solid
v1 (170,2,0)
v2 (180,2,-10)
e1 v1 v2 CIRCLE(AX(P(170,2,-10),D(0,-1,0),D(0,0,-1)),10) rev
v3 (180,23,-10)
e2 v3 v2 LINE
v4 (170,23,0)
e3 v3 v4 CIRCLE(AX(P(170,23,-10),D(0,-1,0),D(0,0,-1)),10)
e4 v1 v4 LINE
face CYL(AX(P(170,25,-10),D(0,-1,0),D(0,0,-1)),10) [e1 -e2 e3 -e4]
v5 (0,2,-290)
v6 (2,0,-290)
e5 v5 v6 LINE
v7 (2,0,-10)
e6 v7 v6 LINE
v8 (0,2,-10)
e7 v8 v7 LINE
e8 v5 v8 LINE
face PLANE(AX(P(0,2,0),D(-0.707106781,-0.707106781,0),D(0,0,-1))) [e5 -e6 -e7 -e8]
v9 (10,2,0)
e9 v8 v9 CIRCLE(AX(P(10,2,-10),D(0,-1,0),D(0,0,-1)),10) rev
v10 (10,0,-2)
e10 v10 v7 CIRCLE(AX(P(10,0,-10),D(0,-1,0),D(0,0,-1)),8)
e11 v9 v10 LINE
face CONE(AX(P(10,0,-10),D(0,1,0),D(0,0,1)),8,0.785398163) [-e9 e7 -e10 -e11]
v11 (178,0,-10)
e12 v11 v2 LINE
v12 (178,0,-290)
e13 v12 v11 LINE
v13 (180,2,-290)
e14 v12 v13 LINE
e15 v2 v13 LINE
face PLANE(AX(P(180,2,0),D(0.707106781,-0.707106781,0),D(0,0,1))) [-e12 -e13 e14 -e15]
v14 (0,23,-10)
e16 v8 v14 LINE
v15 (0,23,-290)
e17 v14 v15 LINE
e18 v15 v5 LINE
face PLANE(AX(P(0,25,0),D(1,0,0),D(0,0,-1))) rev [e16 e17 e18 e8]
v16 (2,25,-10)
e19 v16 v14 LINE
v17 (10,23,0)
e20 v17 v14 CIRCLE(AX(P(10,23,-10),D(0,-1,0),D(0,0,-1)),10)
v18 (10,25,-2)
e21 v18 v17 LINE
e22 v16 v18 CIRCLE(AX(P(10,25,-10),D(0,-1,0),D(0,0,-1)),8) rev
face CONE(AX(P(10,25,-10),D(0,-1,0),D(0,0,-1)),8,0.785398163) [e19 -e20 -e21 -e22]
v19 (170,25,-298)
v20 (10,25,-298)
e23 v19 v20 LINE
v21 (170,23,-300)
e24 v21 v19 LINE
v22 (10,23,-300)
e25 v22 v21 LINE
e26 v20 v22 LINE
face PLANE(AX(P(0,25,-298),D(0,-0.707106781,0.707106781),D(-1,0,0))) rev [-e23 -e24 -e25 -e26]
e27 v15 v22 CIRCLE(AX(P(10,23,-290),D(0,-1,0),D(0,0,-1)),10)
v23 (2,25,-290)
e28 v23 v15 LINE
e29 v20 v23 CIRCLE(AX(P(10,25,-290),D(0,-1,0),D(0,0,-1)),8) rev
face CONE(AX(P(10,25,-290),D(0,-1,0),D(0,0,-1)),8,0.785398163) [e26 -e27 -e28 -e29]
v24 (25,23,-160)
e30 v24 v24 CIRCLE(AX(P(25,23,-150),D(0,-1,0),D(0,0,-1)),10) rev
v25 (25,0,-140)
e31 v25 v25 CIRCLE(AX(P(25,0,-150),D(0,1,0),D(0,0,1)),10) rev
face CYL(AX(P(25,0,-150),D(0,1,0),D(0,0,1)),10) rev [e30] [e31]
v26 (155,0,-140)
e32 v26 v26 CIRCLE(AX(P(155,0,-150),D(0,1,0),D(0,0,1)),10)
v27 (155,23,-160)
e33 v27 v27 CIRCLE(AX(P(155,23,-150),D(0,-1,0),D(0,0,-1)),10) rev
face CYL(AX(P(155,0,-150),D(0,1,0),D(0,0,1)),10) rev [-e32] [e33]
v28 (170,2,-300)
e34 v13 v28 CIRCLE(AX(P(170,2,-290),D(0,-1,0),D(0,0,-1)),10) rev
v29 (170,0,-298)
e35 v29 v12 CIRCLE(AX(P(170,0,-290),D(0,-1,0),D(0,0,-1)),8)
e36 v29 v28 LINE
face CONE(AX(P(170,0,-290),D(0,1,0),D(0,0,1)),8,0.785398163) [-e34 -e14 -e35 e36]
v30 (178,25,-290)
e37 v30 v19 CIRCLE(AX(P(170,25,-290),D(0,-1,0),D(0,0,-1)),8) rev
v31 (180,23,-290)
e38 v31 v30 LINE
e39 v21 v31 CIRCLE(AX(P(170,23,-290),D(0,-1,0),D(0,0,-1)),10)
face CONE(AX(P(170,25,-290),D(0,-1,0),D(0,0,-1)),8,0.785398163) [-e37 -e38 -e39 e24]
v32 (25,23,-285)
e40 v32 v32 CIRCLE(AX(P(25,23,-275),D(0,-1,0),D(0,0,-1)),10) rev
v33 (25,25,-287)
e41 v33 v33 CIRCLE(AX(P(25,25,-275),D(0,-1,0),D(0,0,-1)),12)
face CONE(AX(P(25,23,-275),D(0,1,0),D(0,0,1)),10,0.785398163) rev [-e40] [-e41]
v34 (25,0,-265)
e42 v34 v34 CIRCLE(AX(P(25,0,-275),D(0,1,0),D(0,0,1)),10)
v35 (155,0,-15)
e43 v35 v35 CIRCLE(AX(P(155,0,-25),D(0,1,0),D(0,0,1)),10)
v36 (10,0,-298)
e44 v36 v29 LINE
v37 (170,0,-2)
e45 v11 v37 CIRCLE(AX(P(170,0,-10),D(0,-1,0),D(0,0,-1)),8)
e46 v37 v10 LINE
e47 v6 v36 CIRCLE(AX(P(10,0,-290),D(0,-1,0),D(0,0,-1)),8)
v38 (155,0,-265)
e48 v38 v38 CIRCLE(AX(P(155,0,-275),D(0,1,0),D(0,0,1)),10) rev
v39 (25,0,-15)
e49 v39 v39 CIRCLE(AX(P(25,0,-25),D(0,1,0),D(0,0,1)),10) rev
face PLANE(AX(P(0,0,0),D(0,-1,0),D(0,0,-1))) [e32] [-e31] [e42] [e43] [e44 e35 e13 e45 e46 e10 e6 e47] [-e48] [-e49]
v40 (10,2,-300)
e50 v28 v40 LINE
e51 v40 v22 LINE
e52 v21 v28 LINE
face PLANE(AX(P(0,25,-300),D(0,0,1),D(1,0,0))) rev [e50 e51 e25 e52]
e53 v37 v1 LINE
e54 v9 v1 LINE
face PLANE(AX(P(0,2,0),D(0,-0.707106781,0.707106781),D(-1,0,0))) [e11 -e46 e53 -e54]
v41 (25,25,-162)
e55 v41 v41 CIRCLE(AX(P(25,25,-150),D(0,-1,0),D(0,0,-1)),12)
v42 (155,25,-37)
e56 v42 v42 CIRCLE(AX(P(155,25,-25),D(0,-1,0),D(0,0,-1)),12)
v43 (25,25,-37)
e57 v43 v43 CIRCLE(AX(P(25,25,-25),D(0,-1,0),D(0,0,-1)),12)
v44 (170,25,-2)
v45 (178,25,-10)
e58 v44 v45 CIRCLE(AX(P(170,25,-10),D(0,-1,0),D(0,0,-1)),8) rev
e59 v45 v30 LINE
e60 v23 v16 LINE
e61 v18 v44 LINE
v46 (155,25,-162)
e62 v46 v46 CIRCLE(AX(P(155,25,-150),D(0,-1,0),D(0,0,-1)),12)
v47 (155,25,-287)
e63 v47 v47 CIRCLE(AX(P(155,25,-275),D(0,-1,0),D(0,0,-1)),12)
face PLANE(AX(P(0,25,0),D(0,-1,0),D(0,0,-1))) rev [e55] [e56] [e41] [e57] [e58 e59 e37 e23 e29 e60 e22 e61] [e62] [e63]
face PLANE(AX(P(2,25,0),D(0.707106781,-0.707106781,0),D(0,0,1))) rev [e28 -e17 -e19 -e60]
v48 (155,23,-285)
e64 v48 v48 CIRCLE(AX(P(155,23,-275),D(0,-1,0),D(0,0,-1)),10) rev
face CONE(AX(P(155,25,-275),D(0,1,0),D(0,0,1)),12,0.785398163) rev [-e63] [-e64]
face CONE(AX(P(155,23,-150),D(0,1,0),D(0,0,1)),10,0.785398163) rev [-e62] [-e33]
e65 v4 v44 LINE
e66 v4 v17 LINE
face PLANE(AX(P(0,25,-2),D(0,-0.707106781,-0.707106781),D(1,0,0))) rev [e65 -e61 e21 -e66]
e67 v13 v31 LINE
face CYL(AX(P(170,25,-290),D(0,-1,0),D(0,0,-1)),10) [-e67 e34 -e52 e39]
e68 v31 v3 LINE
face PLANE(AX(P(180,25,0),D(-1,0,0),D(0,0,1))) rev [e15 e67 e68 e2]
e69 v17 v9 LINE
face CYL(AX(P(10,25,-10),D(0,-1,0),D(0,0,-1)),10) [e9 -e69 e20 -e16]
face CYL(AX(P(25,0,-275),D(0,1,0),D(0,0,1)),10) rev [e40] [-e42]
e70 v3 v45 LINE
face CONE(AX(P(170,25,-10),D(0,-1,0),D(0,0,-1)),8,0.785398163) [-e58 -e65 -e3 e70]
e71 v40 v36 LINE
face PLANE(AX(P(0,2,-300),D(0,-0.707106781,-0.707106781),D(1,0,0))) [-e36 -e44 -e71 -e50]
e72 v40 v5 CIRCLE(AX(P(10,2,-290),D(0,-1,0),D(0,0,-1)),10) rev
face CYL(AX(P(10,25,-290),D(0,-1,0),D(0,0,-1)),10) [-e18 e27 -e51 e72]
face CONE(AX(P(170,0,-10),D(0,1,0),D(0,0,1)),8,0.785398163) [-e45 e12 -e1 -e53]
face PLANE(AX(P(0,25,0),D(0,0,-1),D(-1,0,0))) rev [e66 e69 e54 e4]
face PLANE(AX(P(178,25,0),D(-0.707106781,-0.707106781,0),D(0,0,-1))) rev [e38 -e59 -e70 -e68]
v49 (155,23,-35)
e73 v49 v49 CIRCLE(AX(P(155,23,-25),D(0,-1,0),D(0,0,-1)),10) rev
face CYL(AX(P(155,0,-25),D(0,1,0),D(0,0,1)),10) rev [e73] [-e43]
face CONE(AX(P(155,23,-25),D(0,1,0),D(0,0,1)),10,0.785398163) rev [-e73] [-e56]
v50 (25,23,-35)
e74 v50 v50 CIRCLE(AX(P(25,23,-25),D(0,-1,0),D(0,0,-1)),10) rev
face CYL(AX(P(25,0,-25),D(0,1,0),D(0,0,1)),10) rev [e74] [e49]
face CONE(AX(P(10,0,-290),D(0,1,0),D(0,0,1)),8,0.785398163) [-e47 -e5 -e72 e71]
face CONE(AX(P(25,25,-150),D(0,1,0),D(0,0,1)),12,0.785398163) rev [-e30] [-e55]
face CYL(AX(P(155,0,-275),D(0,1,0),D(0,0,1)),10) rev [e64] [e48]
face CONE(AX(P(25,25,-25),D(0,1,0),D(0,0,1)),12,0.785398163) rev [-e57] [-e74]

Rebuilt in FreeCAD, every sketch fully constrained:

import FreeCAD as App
import Part
import Sketcher

V = App.Vector


def edges_at(feature, points):
    """Names of the edges that pass closest to the given points."""
    edges = feature.Shape.Edges
    near = lambda p: min(range(len(edges)), key=lambda i: edges[i].distToShape(Part.Vertex(*p))[0])
    return sorted({f"Edge{near(p) + 1}" for p in points})


def add_polygon(sketch, points):
    """Adds a closed chain of lines whose ends are joined by coincident constraints."""
    first, n = sketch.GeometryCount, len(points)
    for a, b in zip(points, points[1:] + points[:1]):
        sketch.addGeometry(Part.LineSegment(App.Vector(*a, 0), App.Vector(*b, 0)), False)
    for i in range(n):
        sketch.addConstraint(Sketcher.Constraint("Coincident", first + i, 2, first + (i + 1) % n, 1))

doc = App.newDocument("Part")
body = doc.addObject("PartDesign::Body", "Body")

# Sketch on XZ plane
sketch1 = doc.addObject("Sketcher::SketchObject", "Sketch")
body.addObject(sketch1)
sketch1.AttachmentSupport = (doc.XZ_Plane, [""])
sketch1.MapMode = "FlatFace"
add_polygon(sketch1, [(0, -300), (0, 0), (180, 0), (180, -300)])  # lines 0-3
sketch1.addConstraint(Sketcher.Constraint("Vertical", 0))
sketch1.addConstraint(Sketcher.Constraint("Horizontal", 1))
sketch1.addConstraint(Sketcher.Constraint("Vertical", 2))
sketch1.addConstraint(Sketcher.Constraint("Horizontal", 3))
sketch1.addConstraint(Sketcher.Constraint("Coincident", 0, 2, -1, 1))
sketch1.addConstraint(Sketcher.Constraint("DistanceX", 1, 1, 1, 2, 180.0))
sketch1.addConstraint(Sketcher.Constraint("DistanceY", 0, 1, 0, 2, 300.0))
pad1 = doc.addObject("PartDesign::Pad", "Pad")
body.addObject(pad1)
pad1.Profile = sketch1
pad1.Length = 25
pad1.Reversed = True

# Sketch on XZ plane
sketch2 = doc.addObject("Sketcher::SketchObject", "Sketch001")
body.addObject(sketch2)
sketch2.AttachmentSupport = (doc.XZ_Plane, [""])
sketch2.MapMode = "FlatFace"
sketch2.AttachmentOffset = App.Placement(V(0, 0, -25), App.Rotation())
sketch2.addGeometry(Part.Circle(V(25, -25, 0), V(0, 0, 1), 10), False)
sketch2.addGeometry(Part.Circle(V(155, -25, 0), V(0, 0, 1), 10), False)
sketch2.addGeometry(Part.Circle(V(155, -150, 0), V(0, 0, 1), 10), False)
sketch2.addGeometry(Part.Circle(V(155, -275, 0), V(0, 0, 1), 10), False)
sketch2.addGeometry(Part.Circle(V(25, -150, 0), V(0, 0, 1), 10), False)
sketch2.addGeometry(Part.Circle(V(25, -275, 0), V(0, 0, 1), 10), False)
sketch2.addConstraint(Sketcher.Constraint("Equal", 0, 1))
sketch2.addConstraint(Sketcher.Constraint("Equal", 1, 2))
sketch2.addConstraint(Sketcher.Constraint("Equal", 2, 3))
sketch2.addConstraint(Sketcher.Constraint("Equal", 3, 4))
sketch2.addConstraint(Sketcher.Constraint("Equal", 4, 5))
sketch2.addConstraint(Sketcher.Constraint("Horizontal", 0, 3, 1, 3))
sketch2.addConstraint(Sketcher.Constraint("Horizontal", 2, 3, 4, 3))
sketch2.addConstraint(Sketcher.Constraint("Horizontal", 3, 3, 5, 3))
sketch2.addConstraint(Sketcher.Constraint("Vertical", 1, 3, 2, 3))
sketch2.addConstraint(Sketcher.Constraint("Vertical", 2, 3, 3, 3))
sketch2.addConstraint(Sketcher.Constraint("Vertical", 0, 3, 4, 3))
sketch2.addConstraint(Sketcher.Constraint("Vertical", 4, 3, 5, 3))
sketch2.addConstraint(Sketcher.Constraint("Diameter", 0, 20.0))
sketch2.addConstraint(Sketcher.Constraint("DistanceX", -1, 1, 0, 3, 25.0))
sketch2.addConstraint(Sketcher.Constraint("DistanceY", 0, 3, -1, 1, 25.0))
sketch2.addConstraint(Sketcher.Constraint("DistanceX", -1, 1, 1, 3, 155.0))
sketch2.addConstraint(Sketcher.Constraint("DistanceY", 2, 3, -1, 1, 150.0))
sketch2.addConstraint(Sketcher.Constraint("DistanceY", 3, 3, -1, 1, 275.0))
pocket1 = doc.addObject("PartDesign::Pocket", "Pocket")
body.addObject(pocket1)
pocket1.Profile = sketch2
pocket1.Type = "ThroughAll"
pocket1.Reversed = True
doc.recompute()

fillet = doc.addObject("PartDesign::Fillet", "Fillet")
body.addObject(fillet)
fillet.Base = (pocket1, edges_at(pocket1, [
    (0, 12.5, -300),
    (180, 12.5, -300),
    (180, 12.5, 0),
    (0, 12.5, 0),
]))
fillet.Radius = 10
doc.recompute()

chamfer = doc.addObject("PartDesign::Chamfer", "Chamfer")
body.addObject(chamfer)
chamfer.Base = (fillet, edges_at(fillet, [
    (90, 0, -300),
    (90, 25, -300),
    (0, 0, -150),
    (180, 0, -150),
    (90, 0, 0),
    (177.071, 0, -2.929),
    (2.929, 0, -2.929),
    (2.929, 0, -297.071),
    (177.071, 0, -297.071),
    (180, 25, -150),
    (0, 25, -150),
    (90, 25, 0),
    (177.071, 25, -2.929),
    (2.929, 25, -2.929),
    (2.929, 25, -297.071),
    (177.071, 25, -297.071),
]))
chamfer.Size = 2
doc.recompute()

chamfer2 = doc.addObject("PartDesign::Chamfer", "Chamfer001")
body.addObject(chamfer2)
chamfer2.Base = (chamfer, edges_at(chamfer, [
    (25, 25, -160),
    (155, 25, -285),
    (155, 25, -160),
    (155, 25, -35),
    (25, 25, -285),
    (25, 25, -35),
]))
chamfer2.Size = 2

doc.recompute()
